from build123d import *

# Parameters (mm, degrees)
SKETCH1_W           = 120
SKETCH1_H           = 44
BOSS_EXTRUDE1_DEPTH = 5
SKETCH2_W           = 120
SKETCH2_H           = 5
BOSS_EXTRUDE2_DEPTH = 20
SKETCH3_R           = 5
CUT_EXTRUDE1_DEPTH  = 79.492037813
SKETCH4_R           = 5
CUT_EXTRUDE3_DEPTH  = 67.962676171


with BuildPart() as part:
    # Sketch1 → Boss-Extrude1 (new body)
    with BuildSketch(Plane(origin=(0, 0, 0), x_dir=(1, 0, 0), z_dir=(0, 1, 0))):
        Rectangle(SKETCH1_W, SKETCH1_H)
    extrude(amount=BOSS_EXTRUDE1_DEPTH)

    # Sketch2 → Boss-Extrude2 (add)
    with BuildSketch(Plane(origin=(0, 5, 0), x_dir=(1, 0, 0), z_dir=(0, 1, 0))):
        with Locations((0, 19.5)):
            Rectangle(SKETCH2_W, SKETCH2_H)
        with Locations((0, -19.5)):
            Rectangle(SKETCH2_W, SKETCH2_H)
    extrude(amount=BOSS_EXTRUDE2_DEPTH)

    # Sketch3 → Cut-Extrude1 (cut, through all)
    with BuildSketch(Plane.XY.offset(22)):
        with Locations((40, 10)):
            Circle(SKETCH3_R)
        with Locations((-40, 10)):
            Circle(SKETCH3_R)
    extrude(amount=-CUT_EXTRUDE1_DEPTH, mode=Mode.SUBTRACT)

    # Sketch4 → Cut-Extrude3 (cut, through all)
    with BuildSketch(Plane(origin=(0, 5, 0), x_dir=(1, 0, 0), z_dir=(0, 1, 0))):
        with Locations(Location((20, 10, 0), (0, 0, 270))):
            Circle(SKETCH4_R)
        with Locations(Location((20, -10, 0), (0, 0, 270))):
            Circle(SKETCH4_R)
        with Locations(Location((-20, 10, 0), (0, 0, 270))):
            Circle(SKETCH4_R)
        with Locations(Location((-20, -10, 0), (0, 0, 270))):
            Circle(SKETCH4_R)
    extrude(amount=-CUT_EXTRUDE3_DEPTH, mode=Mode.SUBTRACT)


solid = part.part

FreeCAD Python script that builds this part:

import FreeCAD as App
import Part
import Sketcher

V = App.Vector
Q = App.Units.Quantity

doc = App.newDocument("Part")
params = doc.addObject("Spreadsheet::Sheet", "Params")
for row, (alias, value) in enumerate([
    ("sketch1_width", "120 mm"),
    ("sketch1_height", "44 mm"),
    ("pad1_length", "5 mm"),
    ("sketch2_width", "120 mm"),
    ("sketch2_height", "5 mm"),
    ("pad2_length", "20 mm"),
    ("sketch3_diameter", "10 mm"),
    ("sketch4_diameter", "10 mm"),
], start=1):
    params.set(f"A{row}", alias)
    params.set(f"B{row}", "=" + value)
    params.setAlias(f"B{row}", alias)

body = doc.addObject("PartDesign::Body", "Body")

sketch1 = body.newObject("Sketcher::SketchObject", "Sketch")
sketch1.AttachmentSupport = (doc.getObject("XZ_Plane"), [""])
sketch1.MapMode = "FlatFace"
sketch1.addGeometry([
    Part.LineSegment(V(-60, -22, 0), V(-60, 22, 0)),
    Part.LineSegment(V(-60, 22, 0), V(60, 22, 0)),
    Part.LineSegment(V(60, 22, 0), V(60, -22, 0)),
    Part.LineSegment(V(60, -22, 0), V(-60, -22, 0)),
], False)
sketch1.addConstraint([
    Sketcher.Constraint("Coincident", 0, 2, 1, 1),
    Sketcher.Constraint("Coincident", 1, 2, 2, 1),
    Sketcher.Constraint("Coincident", 2, 2, 3, 1),
    Sketcher.Constraint("Coincident", 3, 2, 0, 1),
    Sketcher.Constraint("Vertical", 0),
    Sketcher.Constraint("Horizontal", 1),
    Sketcher.Constraint("Vertical", 2),
    Sketcher.Constraint("Horizontal", 3),
    Sketcher.Constraint("Symmetric", 0, 2, 2, 2, -1, 1),
    Sketcher.Constraint("DistanceX", 1, 1, 1, 2, Q("120 mm")),
    Sketcher.Constraint("DistanceY", 0, 1, 0, 2, Q("44 mm")),
])
sketch1.setExpression("Constraints[9]", "Params.sketch1_width")
sketch1.setExpression("Constraints[10]", "Params.sketch1_height")
pad1 = body.newObject("PartDesign::Pad", "Pad")
pad1.Profile = sketch1
pad1.setExpression("Length", "Params.pad1_length")
pad1.Reversed = True

sketch2 = body.newObject("Sketcher::SketchObject", "Sketch001")
sketch2.AttachmentSupport = (doc.getObject("XZ_Plane"), [""])
sketch2.MapMode = "FlatFace"
sketch2.AttachmentOffset = App.Placement(V(0, 0, -5), App.Rotation())
sketch2.addGeometry([
    Part.LineSegment(V(-60, -22, 0), V(-60, -17, 0)),
    Part.LineSegment(V(-60, -17, 0), V(60, -17, 0)),
    Part.LineSegment(V(60, -17, 0), V(60, -22, 0)),
    Part.LineSegment(V(60, -22, 0), V(-60, -22, 0)),
    Part.LineSegment(V(-60, 17, 0), V(-60, 22, 0)),
    Part.LineSegment(V(-60, 22, 0), V(60, 22, 0)),
    Part.LineSegment(V(60, 22, 0), V(60, 17, 0)),
    Part.LineSegment(V(60, 17, 0), V(-60, 17, 0)),
], False)
sketch2.addConstraint([
    Sketcher.Constraint("Coincident", 0, 2, 1, 1),
    Sketcher.Constraint("Coincident", 1, 2, 2, 1),
    Sketcher.Constraint("Coincident", 2, 2, 3, 1),
    Sketcher.Constraint("Coincident", 3, 2, 0, 1),
    Sketcher.Constraint("Coincident", 4, 2, 5, 1),
    Sketcher.Constraint("Coincident", 5, 2, 6, 1),
    Sketcher.Constraint("Coincident", 6, 2, 7, 1),
    Sketcher.Constraint("Coincident", 7, 2, 4, 1),
    Sketcher.Constraint("Vertical", 0),
    Sketcher.Constraint("Horizontal", 1),
    Sketcher.Constraint("Vertical", 2),
    Sketcher.Constraint("Horizontal", 3),
    Sketcher.Constraint("Vertical", 4),
    Sketcher.Constraint("Horizontal", 5),
    Sketcher.Constraint("Vertical", 6),
    Sketcher.Constraint("Horizontal", 7),
    Sketcher.Constraint("Symmetric", 2, 2, 4, 2, -1, 1),
    Sketcher.Constraint("Symmetric", 0, 2, 6, 2, -1, 1),
    Sketcher.Constraint("Vertical", 3, 2, 4, 2),
    Sketcher.Constraint("DistanceX", 1, 1, 1, 2, Q("120 mm")),
    Sketcher.Constraint("DistanceY", 0, 1, 0, 2, Q("5 mm")),
    Sketcher.Constraint("DistanceY", 0, 2, -1, 1, Q("17 mm")),
])
sketch2.setExpression("Constraints[19]", "Params.sketch2_width")
sketch2.setExpression("Constraints[20]", "Params.sketch2_height")
pad2 = body.newObject("PartDesign::Pad", "Pad001")
pad2.Profile = sketch2
pad2.setExpression("Length", "Params.pad2_length")
pad2.Reversed = True

sketch3 = body.newObject("Sketcher::SketchObject", "Sketch002")
sketch3.AttachmentSupport = (doc.getObject("XY_Plane"), [""])
sketch3.MapMode = "FlatFace"
sketch3.AttachmentOffset = App.Placement(V(0, 0, 22), App.Rotation())
sketch3.addGeometry([
    Part.Circle(V(40, 10, 0), V(0, 0, 1), 5),
    Part.Circle(V(-40, 10, 0), V(0, 0, 1), 5),
], False)
sketch3.addConstraint([
    Sketcher.Constraint("Equal", 0, 1),
    Sketcher.Constraint("Symmetric", 0, 3, 1, 3, -2),
    Sketcher.Constraint("Diameter", 0, Q("10 mm")),
    Sketcher.Constraint("DistanceX", -1, 1, 0, 3, Q("40 mm")),
    Sketcher.Constraint("DistanceY", -1, 1, 0, 3, Q("10 mm")),
])
sketch3.setExpression("Constraints[2]", "Params.sketch3_diameter")
pocket1 = body.newObject("PartDesign::Pocket", "Pocket")
pocket1.Profile = sketch3
pocket1.Type = "ThroughAll"

sketch4 = body.newObject("Sketcher::SketchObject", "Sketch003")
sketch4.AttachmentSupport = (doc.getObject("XZ_Plane"), [""])
sketch4.MapMode = "FlatFace"
sketch4.AttachmentOffset = App.Placement(V(0, 0, -5), App.Rotation())
sketch4.addGeometry([
    Part.Circle(V(20, -10, 0), V(0, 0, 1), 5),
    Part.Circle(V(20, 10, 0), V(0, 0, 1), 5),
    Part.Circle(V(-20, -10, 0), V(0, 0, 1), 5),
    Part.Circle(V(-20, 10, 0), V(0, 0, 1), 5),
], False)
sketch4.addConstraint([
    Sketcher.Constraint("Equal", 0, 1),
    Sketcher.Constraint("Equal", 1, 2),
    Sketcher.Constraint("Equal", 2, 3),
    Sketcher.Constraint("Symmetric", 1, 3, 2, 3, -1, 1),
    Sketcher.Constraint("Symmetric", 0, 3, 3, 3, -1, 1),
    Sketcher.Constraint("Symmetric", 0, 3, 2, 3, -2),
    Sketcher.Constraint("Diameter", 0, Q("10 mm")),
    Sketcher.Constraint("DistanceX", -1, 1, 0, 3, Q("20 mm")),
    Sketcher.Constraint("DistanceY", 0, 3, -1, 1, Q("10 mm")),
])
sketch4.setExpression("Constraints[6]", "Params.sketch4_diameter")
pocket2 = body.newObject("PartDesign::Pocket", "Pocket001")
pocket2.Profile = sketch4
pocket2.Type = "ThroughAll"
pocket2.Reversed = True

doc.recompute()
